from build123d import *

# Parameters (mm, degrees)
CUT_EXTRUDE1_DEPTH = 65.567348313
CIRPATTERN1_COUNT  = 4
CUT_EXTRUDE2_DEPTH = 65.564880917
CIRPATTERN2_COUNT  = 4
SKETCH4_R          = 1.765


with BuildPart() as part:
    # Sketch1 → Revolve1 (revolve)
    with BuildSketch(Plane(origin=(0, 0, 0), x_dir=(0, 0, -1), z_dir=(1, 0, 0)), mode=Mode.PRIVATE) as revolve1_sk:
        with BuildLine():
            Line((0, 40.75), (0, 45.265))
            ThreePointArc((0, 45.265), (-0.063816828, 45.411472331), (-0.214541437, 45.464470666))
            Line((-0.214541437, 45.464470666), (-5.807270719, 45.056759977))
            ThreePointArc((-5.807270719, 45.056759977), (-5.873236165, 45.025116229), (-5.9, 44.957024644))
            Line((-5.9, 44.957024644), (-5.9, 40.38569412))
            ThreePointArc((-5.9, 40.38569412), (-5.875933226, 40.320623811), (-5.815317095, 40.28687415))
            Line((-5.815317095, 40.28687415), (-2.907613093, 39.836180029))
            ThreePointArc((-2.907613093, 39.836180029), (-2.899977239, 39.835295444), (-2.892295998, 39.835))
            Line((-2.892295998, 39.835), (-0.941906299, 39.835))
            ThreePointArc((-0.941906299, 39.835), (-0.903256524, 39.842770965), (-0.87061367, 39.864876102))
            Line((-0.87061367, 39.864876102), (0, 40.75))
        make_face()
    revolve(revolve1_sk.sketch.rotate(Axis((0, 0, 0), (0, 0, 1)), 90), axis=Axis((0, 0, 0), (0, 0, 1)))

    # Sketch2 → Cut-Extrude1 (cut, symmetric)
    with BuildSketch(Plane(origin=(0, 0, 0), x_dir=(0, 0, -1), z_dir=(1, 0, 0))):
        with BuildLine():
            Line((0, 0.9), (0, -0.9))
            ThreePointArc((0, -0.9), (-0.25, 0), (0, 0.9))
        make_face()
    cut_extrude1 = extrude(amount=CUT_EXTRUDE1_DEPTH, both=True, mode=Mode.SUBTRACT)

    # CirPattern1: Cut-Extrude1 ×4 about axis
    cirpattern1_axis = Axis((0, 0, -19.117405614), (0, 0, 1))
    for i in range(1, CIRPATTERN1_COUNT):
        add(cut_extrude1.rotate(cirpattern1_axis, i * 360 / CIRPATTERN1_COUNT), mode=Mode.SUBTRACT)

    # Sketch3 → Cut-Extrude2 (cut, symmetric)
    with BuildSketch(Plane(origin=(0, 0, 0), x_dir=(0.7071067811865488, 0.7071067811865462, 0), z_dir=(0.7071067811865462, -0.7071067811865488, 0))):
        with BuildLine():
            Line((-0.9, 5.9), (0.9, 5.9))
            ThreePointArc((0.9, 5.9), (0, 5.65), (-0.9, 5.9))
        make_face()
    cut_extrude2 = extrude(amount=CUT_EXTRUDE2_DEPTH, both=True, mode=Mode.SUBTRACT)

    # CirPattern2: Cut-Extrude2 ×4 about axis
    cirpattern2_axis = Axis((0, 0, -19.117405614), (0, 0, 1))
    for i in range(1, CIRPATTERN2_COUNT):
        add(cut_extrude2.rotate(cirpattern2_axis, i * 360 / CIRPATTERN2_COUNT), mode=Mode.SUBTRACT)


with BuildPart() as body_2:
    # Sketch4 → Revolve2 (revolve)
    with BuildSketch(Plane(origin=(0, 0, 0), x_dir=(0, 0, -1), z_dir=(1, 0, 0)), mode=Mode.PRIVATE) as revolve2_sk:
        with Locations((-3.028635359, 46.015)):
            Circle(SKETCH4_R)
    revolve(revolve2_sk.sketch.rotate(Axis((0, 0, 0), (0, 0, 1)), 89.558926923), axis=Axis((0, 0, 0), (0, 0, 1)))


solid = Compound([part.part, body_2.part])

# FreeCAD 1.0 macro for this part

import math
import FreeCAD as App
import Part
import Sketcher
from FreeCAD import Vector

doc = App.newDocument("Part")
body = doc.addObject("PartDesign::Body", "Body")

sketch1 = body.newObject("Sketcher::SketchObject", "Sketch")
sketch1.AttachmentSupport = (doc.getObject("YZ_Plane"), [""])
sketch1.MapMode = "FlatFace"
sketch1.addGeometry([
    Part.LineSegment(Vector(40.75, 0, 0), Vector(45.265, 0, 0)),
    Part.ArcOfCircle(Part.Circle(Vector(45.265, 0.2, 0), Vector(0, 0, 1), 0.2), math.radians(-90), math.radians(4.169494)),
    Part.LineSegment(Vector(45.464471, 0.214541, 0), Vector(45.05676, 5.807271, 0)),
    Part.ArcOfCircle(Part.Circle(Vector(44.957025, 5.8, 0), Vector(0, 0, 1), 0.1), math.radians(4.169496), math.radians(89.999999)),
    Part.LineSegment(Vector(44.957025, 5.9, 0), Vector(40.385694, 5.9, 0)),
    Part.ArcOfCircle(Part.Circle(Vector(40.385694, 5.8, 0), Vector(0, 0, 1), 0.1), math.radians(90.000001), math.radians(171.189267)),
    Part.LineSegment(Vector(40.286874, 5.815317, 0), Vector(39.83618, 2.907613, 0)),
    Part.ArcOfCircle(Part.Circle(Vector(39.935, 2.892296, 0), Vector(0, 0, 1), 0.1), math.radians(171.189275), math.radians(179.999995)),
    Part.LineSegment(Vector(39.835, 2.892296, 0), Vector(39.835, 0.941906, 0)),
    Part.ArcOfCircle(Part.Circle(Vector(39.935, 0.941906, 0), Vector(0, 0, 1), 0.1), math.radians(180), math.radians(225.473508)),
    Part.LineSegment(Vector(39.864876, 0.870614, 0), Vector(40.75, 0, 0)),
], False)
sketch1.addConstraint([
    Sketcher.Constraint("Tangent", 0, 2, 1, 1),
    Sketcher.Constraint("Tangent", 1, 2, 2, 1),
    Sketcher.Constraint("Tangent", 2, 2, 3, 1),
    Sketcher.Constraint("Tangent", 3, 2, 4, 1),
    Sketcher.Constraint("Tangent", 4, 2, 5, 1),
    Sketcher.Constraint("Tangent", 5, 2, 6, 1),
    Sketcher.Constraint("Tangent", 6, 2, 7, 1),
    Sketcher.Constraint("Tangent", 7, 2, 8, 1),
    Sketcher.Constraint("Tangent", 8, 2, 9, 1),
    Sketcher.Constraint("Tangent", 9, 2, 10, 1),
    Sketcher.Constraint("Coincident", 10, 2, 0, 1),
    Sketcher.Constraint("Horizontal", 0),
    Sketcher.Constraint("Horizontal", 4),
    Sketcher.Constraint("Vertical", 8),
    Sketcher.Constraint("Equal", 3, 5),
    Sketcher.Constraint("Equal", 5, 7),
    Sketcher.Constraint("Equal", 7, 9),
    Sketcher.Constraint("PointOnObject", 0, 2, -1),
    Sketcher.Constraint("Radius", 1, 0.2),
    Sketcher.Constraint("Radius", 3, 0.1),
    Sketcher.Constraint("DistanceY", -1, 1, 3, 3, 5.8),
    Sketcher.Constraint("DistanceX", 0, 1, 0, 2, 4.515),
    Sketcher.Constraint("DistanceX", -1, 1, 10, 2, 40.75),
    Sketcher.Constraint("DistanceX", 7, 3, 1, 3, 5.33),
    Sketcher.Constraint("DistanceY", 9, 2, 6, 2, 2.036999),
    Sketcher.Constraint("DistanceX", 4, 2, 4, 1, 4.571331),
    Sketcher.Constraint("DistanceY", 8, 2, 8, 1, 1.95039),
    Sketcher.Constraint("Distance", 2, 5.607571),
])
revolution = body.newObject("PartDesign::Revolution", "Revolution")
revolution.Profile = sketch1
revolution.ReferenceAxis = (sketch1, ["V_Axis"])
revolution.Angle = 360

sketch2 = body.newObject("Sketcher::SketchObject", "Sketch001")
sketch2.AttachmentSupport = (doc.getObject("YZ_Plane"), [""])
sketch2.MapMode = "FlatFace"
sketch2.addGeometry([
    Part.LineSegment(Vector(-0.9, 0, 0), Vector(0.9, 0, 0)),
    Part.ArcOfCircle(Part.Circle(Vector(0, -1.495, 0), Vector(0, 0, 1), 1.745), math.radians(58.951778), math.radians(121.048222)),
], False)
sketch2.addConstraint([
    Sketcher.Constraint("Coincident", 0, 1, 1, 2),
    Sketcher.Constraint("Coincident", 1, 1, 0, 2),
    Sketcher.Constraint("Horizontal", 0),
    Sketcher.Constraint("Symmetric", 0, 1, 1, 1, -1, 1),
    Sketcher.Constraint("DistanceX", 0, 1, 0, 2, 1.8),
    Sketcher.Constraint("Radius", 1, 1.745),
])
pocket1 = body.newObject("PartDesign::Pocket", "Pocket")
pocket1.Profile = sketch2
pocket1.Length = 131.134697
pocket1.Midplane = True
doc.recompute()

polarpattern = body.newObject("PartDesign::PolarPattern", "PolarPattern")
polarpattern.Originals = [pocket1]
polarpattern.Axis = (doc.getObject("Z_Axis"), [""])
polarpattern.Angle = 360
polarpattern.Occurrences = 4
body.Tip = polarpattern

sketch3 = body.newObject("Sketcher::SketchObject", "Sketch002")
sketch3.Placement = App.Placement(Vector(0, 0, 0), App.Rotation(Vector(0.707106781, 0.707106781, 0), Vector(0, 0, 0.999999999), Vector(0.707106781, -0.707106781, 0), "ZXY"))
sketch3.addGeometry([
    Part.LineSegment(Vector(0.9, 5.9, 0), Vector(-0.9, 5.9, 0)),
    Part.ArcOfCircle(Part.Circle(Vector(0, 7.395, 0), Vector(0, 0, 1), 1.745), math.radians(-121.048222), math.radians(-58.951778)),
], False)
sketch3.addConstraint([
    Sketcher.Constraint("Coincident", 0, 1, 1, 2),
    Sketcher.Constraint("Coincident", 1, 1, 0, 2),
    Sketcher.Constraint("Horizontal", 0),
    Sketcher.Constraint("PointOnObject", 1, 3, -2),
    Sketcher.Constraint("DistanceX", 0, 2, 0, 1, 1.8),
    Sketcher.Constraint("Radius", 1, 1.745),
    Sketcher.Constraint("DistanceY", -1, 1, 0, 1, 5.9),
])
pocket2 = body.newObject("PartDesign::Pocket", "Pocket001")
pocket2.Profile = sketch3
pocket2.Length = 131.129762
pocket2.Midplane = True
doc.recompute()

polarpattern2 = body.newObject("PartDesign::PolarPattern", "PolarPattern001")
polarpattern2.Originals = [pocket2]
polarpattern2.Axis = (doc.getObject("Z_Axis"), [""])
polarpattern2.Angle = 360
polarpattern2.Occurrences = 4
body.Tip = polarpattern2
body2 = doc.addObject("PartDesign::Body", "Body001")

sketch4 = body2.newObject("Sketcher::SketchObject", "Sketch003")
sketch4.AttachmentSupport = (doc.getObject("YZ_Plane001"), [""])
sketch4.MapMode = "FlatFace"
sketch4.addGeometry(Part.Circle(Vector(46.015, 3.028635, 0), Vector(0, 0, 1), 1.765), False)
sketch4.addConstraint([
    Sketcher.Constraint("Diameter", 0, 3.53),
    Sketcher.Constraint("DistanceX", -1, 1, 0, 3, 46.015),
    Sketcher.Constraint("DistanceY", -1, 1, 0, 3, 3.028635),
])
revolution2 = body2.newObject("PartDesign::Revolution", "Revolution001")
revolution2.Profile = sketch4
revolution2.ReferenceAxis = (sketch4, ["V_Axis"])
revolution2.Angle = 360

doc.recompute()
